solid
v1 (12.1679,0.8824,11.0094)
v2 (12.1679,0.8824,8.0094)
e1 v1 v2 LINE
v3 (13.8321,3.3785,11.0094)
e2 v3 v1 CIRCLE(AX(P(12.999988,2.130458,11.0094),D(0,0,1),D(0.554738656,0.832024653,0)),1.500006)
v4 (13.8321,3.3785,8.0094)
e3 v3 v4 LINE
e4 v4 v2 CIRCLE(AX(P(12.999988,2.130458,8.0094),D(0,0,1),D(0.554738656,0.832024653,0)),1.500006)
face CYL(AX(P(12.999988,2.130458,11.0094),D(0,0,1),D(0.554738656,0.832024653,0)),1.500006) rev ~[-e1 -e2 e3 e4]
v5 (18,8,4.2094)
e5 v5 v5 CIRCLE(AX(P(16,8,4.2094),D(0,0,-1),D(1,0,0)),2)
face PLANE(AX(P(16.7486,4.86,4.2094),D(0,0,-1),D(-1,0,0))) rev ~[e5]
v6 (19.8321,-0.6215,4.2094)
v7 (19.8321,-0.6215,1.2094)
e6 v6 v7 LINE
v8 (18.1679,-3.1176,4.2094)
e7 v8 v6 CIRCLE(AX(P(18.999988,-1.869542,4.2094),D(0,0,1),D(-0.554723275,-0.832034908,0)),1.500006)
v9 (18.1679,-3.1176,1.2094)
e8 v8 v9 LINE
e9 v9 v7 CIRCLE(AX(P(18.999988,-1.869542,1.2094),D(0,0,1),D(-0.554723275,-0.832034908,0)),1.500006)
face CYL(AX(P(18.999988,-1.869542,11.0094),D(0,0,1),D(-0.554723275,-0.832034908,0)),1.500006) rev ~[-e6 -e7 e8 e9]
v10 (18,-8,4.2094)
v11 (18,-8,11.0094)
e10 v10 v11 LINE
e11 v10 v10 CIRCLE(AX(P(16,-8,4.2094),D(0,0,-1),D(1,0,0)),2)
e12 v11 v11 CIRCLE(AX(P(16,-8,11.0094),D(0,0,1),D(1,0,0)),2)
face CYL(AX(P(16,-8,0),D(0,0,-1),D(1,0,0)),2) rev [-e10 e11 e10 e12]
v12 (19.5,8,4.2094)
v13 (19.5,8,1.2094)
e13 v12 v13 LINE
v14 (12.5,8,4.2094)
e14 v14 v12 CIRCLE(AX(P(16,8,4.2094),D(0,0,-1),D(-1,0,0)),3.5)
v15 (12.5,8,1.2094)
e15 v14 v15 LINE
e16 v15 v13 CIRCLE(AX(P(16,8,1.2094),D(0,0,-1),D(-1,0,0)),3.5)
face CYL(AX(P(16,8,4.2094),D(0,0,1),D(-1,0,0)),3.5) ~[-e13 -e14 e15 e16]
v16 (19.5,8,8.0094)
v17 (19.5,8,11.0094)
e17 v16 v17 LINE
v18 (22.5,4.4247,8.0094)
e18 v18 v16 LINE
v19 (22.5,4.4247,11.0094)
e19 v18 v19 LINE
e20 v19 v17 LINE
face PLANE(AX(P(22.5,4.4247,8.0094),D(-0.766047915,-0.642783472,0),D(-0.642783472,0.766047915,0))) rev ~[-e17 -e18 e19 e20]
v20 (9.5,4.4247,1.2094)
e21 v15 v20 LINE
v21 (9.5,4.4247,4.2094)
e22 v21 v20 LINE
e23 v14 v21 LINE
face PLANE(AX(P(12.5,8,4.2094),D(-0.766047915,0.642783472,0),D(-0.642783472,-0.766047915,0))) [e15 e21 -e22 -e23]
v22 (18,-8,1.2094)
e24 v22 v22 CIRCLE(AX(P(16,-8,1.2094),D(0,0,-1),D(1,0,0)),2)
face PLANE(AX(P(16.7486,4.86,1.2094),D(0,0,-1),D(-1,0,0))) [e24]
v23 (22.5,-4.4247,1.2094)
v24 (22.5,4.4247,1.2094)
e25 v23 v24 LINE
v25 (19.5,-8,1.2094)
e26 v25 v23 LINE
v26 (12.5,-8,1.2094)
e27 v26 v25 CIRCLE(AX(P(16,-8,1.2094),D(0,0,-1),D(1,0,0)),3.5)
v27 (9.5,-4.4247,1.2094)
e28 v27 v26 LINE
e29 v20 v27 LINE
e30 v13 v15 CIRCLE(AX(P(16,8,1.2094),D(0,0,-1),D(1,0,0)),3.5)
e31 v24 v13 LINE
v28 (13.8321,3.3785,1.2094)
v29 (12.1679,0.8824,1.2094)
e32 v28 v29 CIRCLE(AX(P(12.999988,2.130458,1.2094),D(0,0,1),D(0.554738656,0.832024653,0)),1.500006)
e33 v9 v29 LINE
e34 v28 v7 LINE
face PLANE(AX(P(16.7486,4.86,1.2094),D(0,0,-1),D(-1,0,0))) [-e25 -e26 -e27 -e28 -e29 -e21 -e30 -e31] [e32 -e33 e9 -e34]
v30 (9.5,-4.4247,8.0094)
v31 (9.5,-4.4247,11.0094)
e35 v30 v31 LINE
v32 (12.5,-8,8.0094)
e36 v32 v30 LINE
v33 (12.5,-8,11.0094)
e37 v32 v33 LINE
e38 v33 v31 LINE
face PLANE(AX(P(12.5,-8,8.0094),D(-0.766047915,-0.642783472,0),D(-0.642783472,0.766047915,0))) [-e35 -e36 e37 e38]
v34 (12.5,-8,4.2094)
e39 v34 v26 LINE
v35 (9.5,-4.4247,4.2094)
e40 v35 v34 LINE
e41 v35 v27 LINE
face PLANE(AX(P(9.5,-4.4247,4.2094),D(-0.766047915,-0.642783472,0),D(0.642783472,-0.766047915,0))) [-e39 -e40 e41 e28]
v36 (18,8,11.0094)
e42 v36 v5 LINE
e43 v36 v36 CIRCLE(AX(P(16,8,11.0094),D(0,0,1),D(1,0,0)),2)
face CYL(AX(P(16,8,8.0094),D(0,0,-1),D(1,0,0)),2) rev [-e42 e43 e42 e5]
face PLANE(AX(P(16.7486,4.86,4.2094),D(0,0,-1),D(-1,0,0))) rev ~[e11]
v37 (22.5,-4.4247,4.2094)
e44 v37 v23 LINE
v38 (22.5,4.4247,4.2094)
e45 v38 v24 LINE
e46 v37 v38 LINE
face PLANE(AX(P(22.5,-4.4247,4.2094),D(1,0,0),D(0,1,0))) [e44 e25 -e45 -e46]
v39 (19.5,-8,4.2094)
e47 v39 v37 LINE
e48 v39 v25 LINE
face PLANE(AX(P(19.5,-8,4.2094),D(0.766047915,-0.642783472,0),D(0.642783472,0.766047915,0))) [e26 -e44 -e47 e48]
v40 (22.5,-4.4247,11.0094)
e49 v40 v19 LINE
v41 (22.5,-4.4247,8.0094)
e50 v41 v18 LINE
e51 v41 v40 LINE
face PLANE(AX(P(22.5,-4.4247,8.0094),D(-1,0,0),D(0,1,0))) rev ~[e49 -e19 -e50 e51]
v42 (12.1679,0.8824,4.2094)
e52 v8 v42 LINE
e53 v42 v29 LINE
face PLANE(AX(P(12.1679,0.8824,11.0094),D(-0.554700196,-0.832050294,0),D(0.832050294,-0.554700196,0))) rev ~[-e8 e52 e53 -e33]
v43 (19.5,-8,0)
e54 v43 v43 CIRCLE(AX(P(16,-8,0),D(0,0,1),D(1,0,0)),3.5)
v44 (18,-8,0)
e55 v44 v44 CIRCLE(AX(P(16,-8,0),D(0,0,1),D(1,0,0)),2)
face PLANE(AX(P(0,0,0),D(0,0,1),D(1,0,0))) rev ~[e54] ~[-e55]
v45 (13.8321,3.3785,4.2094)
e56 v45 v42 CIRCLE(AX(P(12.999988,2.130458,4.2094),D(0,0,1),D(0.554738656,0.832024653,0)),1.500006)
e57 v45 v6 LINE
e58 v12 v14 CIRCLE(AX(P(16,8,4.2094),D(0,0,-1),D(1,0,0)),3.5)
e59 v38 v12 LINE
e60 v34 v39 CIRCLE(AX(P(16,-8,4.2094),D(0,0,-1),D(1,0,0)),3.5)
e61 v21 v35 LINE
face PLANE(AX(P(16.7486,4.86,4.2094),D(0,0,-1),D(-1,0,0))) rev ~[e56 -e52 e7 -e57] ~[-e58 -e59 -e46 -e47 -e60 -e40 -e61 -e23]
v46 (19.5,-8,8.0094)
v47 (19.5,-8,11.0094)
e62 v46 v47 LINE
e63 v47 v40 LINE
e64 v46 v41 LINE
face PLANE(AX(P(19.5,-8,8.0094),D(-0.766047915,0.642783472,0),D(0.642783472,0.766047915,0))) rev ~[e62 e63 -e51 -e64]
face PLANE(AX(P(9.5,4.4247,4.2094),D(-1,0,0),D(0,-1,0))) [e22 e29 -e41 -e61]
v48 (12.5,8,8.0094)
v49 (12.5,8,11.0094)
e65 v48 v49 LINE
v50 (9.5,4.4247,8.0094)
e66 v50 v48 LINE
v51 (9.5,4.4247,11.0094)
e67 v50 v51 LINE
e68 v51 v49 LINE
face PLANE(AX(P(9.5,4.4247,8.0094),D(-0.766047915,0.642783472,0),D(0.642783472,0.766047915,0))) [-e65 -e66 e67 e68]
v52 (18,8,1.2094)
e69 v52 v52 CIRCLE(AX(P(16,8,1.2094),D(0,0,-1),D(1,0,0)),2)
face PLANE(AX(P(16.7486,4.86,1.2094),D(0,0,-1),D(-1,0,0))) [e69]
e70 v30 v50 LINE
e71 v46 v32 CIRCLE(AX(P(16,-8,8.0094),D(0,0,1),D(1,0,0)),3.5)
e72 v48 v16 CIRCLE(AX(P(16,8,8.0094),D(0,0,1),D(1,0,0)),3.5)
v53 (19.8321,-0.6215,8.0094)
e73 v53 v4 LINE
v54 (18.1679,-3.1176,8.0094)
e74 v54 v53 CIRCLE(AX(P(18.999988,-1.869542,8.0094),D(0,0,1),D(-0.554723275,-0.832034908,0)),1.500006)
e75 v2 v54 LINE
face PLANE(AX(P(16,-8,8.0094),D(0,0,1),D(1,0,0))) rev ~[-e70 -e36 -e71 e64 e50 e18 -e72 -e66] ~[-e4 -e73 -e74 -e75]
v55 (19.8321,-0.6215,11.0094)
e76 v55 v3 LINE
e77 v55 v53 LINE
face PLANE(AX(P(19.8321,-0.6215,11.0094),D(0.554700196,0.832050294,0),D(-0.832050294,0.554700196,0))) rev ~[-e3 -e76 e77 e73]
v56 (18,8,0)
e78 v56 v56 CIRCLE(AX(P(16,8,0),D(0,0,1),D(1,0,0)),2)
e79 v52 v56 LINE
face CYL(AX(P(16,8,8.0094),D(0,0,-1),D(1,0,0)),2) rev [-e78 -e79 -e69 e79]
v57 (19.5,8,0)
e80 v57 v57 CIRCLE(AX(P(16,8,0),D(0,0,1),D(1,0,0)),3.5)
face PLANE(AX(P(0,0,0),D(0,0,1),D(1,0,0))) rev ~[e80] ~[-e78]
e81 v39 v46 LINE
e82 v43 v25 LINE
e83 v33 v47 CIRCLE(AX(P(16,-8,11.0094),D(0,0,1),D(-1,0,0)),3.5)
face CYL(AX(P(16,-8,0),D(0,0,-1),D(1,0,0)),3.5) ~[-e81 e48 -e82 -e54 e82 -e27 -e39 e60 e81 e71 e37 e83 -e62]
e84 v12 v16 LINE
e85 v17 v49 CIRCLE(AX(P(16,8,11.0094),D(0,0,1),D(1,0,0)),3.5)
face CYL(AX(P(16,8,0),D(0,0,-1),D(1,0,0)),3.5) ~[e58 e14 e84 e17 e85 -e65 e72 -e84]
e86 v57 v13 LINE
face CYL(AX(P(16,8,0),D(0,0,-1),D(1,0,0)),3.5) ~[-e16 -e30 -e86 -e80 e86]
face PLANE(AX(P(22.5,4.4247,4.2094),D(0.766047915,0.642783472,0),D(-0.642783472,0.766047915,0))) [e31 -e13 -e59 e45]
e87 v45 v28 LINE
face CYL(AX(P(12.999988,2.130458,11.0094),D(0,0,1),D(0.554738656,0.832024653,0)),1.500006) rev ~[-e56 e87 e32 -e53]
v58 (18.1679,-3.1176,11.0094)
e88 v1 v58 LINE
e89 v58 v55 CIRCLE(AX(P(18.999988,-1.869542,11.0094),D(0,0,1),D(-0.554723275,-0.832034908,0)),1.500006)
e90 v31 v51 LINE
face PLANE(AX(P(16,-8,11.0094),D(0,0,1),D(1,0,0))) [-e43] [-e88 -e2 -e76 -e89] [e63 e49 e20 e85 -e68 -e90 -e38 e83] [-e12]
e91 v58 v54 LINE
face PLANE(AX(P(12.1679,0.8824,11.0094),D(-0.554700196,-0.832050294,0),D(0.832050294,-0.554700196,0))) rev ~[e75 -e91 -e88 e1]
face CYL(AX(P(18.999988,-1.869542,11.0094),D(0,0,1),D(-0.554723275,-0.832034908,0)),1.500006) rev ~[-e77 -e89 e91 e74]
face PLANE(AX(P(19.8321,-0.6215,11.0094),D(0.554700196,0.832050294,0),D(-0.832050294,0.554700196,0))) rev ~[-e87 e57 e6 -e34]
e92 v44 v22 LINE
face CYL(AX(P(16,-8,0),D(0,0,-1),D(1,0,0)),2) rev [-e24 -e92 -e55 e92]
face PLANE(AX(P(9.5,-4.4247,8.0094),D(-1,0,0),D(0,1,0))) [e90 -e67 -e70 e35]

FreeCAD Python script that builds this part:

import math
import FreeCAD as App
import Part
import Sketcher

V = App.Vector
Q = App.Units.Quantity

doc = App.newDocument("Part")
body = doc.addObject("PartDesign::Body", "Body")
body.AllowCompound = True

sketch1 = body.newObject("Sketcher::SketchObject", "Sketch")
sketch1.AttachmentSupport = (doc.getObject("XY_Plane"), [""])
sketch1.MapMode = "FlatFace"
sketch1.addGeometry([
    Part.Circle(V(16, -8, 0), V(0, 0, 1), 3.5),
    Part.Circle(V(16, -8, 0), V(0, 0, 1), 2),
    Part.Circle(V(16, 8, 0), V(0, 0, 1), 3.5),
    Part.Circle(V(16, 8, 0), V(0, 0, 1), 2),
], False)
sketch1.addConstraint([
    Sketcher.Constraint("Coincident", 1, 3, 0, 3),
    Sketcher.Constraint("Coincident", 3, 3, 2, 3),
    Sketcher.Constraint("Equal", 0, 2),
    Sketcher.Constraint("Equal", 1, 3),
    Sketcher.Constraint("Symmetric", 0, 3, 2, 3, -1),
    Sketcher.Constraint("Diameter", 0, 7.0),
    Sketcher.Constraint("Diameter", 1, 4.0),
    Sketcher.Constraint("DistanceX", -1, 1, 0, 3, 16.0),
    Sketcher.Constraint("DistanceY", 0, 3, -1, 1, 8.0),
])
pad1 = body.newObject("PartDesign::Pad", "Pad")
pad1.Profile = sketch1
pad1.Length = 8.0094

sketch2 = body.newObject("Sketcher::SketchObject", "Sketch001")
sketch2.AttachmentSupport = (doc.getObject("XY_Plane"), [""])
sketch2.MapMode = "FlatFace"
sketch2.AttachmentOffset = App.Placement(V(0, 0, 8.0094), App.Rotation())
sketch2.addGeometry([
    Part.ArcOfCircle(Part.Circle(V(16, -8, 0), V(0, 0, 1), 3.5), math.radians(180), math.radians(360)),
    Part.LineSegment(V(19.5, -8, 0), V(22.5, -4.4, 0)),
    Part.LineSegment(V(22.5, -4.4, 0), V(22.5, 4.4, 0)),
    Part.LineSegment(V(22.5, 4.4, 0), V(19.5, 8, 0)),
    Part.ArcOfCircle(Part.Circle(V(16, 8, 0), V(0, 0, 1), 3.5), math.radians(0), math.radians(180)),
    Part.LineSegment(V(12.5, 8, 0), V(9.5, 4.4, 0)),
    Part.LineSegment(V(9.5, 4.4, 0), V(9.5, -4.4, 0)),
    Part.LineSegment(V(9.5, -4.4, 0), V(12.5, -8, 0)),
    Part.Circle(V(16, -8, 0), V(0, 0, 1), 2),
    Part.Circle(V(16, 8, 0), V(0, 0, 1), 2),
], False)
sketch2.addConstraint([
    Sketcher.Constraint("Coincident", 0, 2, 1, 1),
    Sketcher.Constraint("Coincident", 1, 2, 2, 1),
    Sketcher.Constraint("Coincident", 2, 2, 3, 1),
    Sketcher.Constraint("Coincident", 3, 2, 4, 1),
    Sketcher.Constraint("Coincident", 4, 2, 5, 1),
    Sketcher.Constraint("Coincident", 5, 2, 6, 1),
    Sketcher.Constraint("Coincident", 6, 2, 7, 1),
    Sketcher.Constraint("Coincident", 7, 2, 0, 1),
    Sketcher.Constraint("Vertical", 2),
    Sketcher.Constraint("Vertical", 6),
    Sketcher.Constraint("Coincident", 8, 3, 0, 3),
    Sketcher.Constraint("Coincident", 9, 3, 4, 3),
    Sketcher.Constraint("Equal", 0, 4),
    Sketcher.Constraint("Equal", 8, 9),
    Sketcher.Constraint("Symmetric", 0, 3, 4, 3, -1),
    Sketcher.Constraint("Parallel", 1, 5),
    Sketcher.Constraint("Parallel", 3, 7),
    Sketcher.Constraint("Horizontal", 8, 3, 0, 2),
    Sketcher.Constraint("Horizontal", 9, 3, 3, 2),
    Sketcher.Constraint("Horizontal", 3, 2, 4, 2),
    Sketcher.Constraint("Horizontal", 2, 2, 5, 2),
    Sketcher.Constraint("Horizontal", 1, 2, 6, 2),
    Sketcher.Constraint("Horizontal", 0, 2, 7, 2),
    Sketcher.Constraint("Diameter", 8, 4.0),
    Sketcher.Constraint("DistanceX", 4, 2, 2, 2, 10.0),
    Sketcher.Constraint("Radius", 0, 3.5),
    Sketcher.Constraint("Angle", 1, Q("50.0003 deg")),
    Sketcher.Constraint("DistanceX", -1, 1, 0, 3, 16.0),
    Sketcher.Constraint("DistanceY", 0, 3, -1, 1, 8.0),
])
pad2 = body.newObject("PartDesign::Pad", "Pad001")
pad2.Profile = sketch2
pad2.Length = 3

sketch3 = body.newObject("Sketcher::SketchObject", "Sketch002")
sketch3.AttachmentSupport = (doc.getObject("XY_Plane"), [""])
sketch3.MapMode = "FlatFace"
sketch3.AttachmentOffset = App.Placement(V(0, 0, 4.2094), App.Rotation())
sketch3.addGeometry([
    Part.LineSegment(V(9.5, 4.4, 0), V(12.5, 8, 0)),
    Part.ArcOfCircle(Part.Circle(V(16, 8, 0), V(0, 0, 1), 3.5), math.radians(0), math.radians(180)),
    Part.LineSegment(V(19.5, 8, 0), V(22.5, 4.4, 0)),
    Part.LineSegment(V(22.5, 4.4, 0), V(22.5, -4.4, 0)),
    Part.LineSegment(V(22.5, -4.4, 0), V(19.5, -8, 0)),
    Part.ArcOfCircle(Part.Circle(V(16, -8, 0), V(0, 0, 1), 3.5), math.radians(180), math.radians(360)),
    Part.LineSegment(V(12.5, -8, 0), V(9.5, -4.4, 0)),
    Part.LineSegment(V(9.5, -4.4, 0), V(9.5, 4.4, 0)),
], False)
sketch3.addConstraint([
    Sketcher.Constraint("Coincident", 0, 2, 1, 2),
    Sketcher.Constraint("Coincident", 1, 1, 2, 1),
    Sketcher.Constraint("Coincident", 2, 2, 3, 1),
    Sketcher.Constraint("Coincident", 3, 2, 4, 1),
    Sketcher.Constraint("Coincident", 4, 2, 5, 2),
    Sketcher.Constraint("Coincident", 5, 1, 6, 1),
    Sketcher.Constraint("Coincident", 6, 2, 7, 1),
    Sketcher.Constraint("Coincident", 7, 2, 0, 1),
    Sketcher.Constraint("Vertical", 3),
    Sketcher.Constraint("Vertical", 7),
    Sketcher.Constraint("Equal", 1, 5),
    Sketcher.Constraint("Symmetric", 1, 3, 5, 3, -1),
    Sketcher.Constraint("Parallel", 0, 4),
    Sketcher.Constraint("Parallel", 2, 6),
    Sketcher.Constraint("Horizontal", 1, 3, 0, 2),
    Sketcher.Constraint("Horizontal", 0, 2, 1, 1),
    Sketcher.Constraint("Horizontal", 5, 3, 4, 2),
    Sketcher.Constraint("Horizontal", 4, 2, 5, 1),
    Sketcher.Constraint("Horizontal", 3, 2, 6, 2),
    Sketcher.Constraint("Horizontal", 2, 2, 7, 2),
    Sketcher.Constraint("Radius", 1, 3.5),
    Sketcher.Constraint("Angle", 0, Q("50.0003 deg")),
    Sketcher.Constraint("DistanceX", -1, 1, 1, 3, 16.0),
    Sketcher.Constraint("DistanceY", -1, 1, 1, 3, 8.0),
    Sketcher.Constraint("DistanceX", 1, 1, 2, 2, 3.0),
])
pad3 = body.newObject("PartDesign::Pad", "Pad002")
pad3.Profile = sketch3
pad3.Length = 3
pad3.Reversed = True

sketch4 = body.newObject("Sketcher::SketchObject", "Sketch003")
sketch4.AttachmentSupport = (doc.getObject("XY_Plane"), [""])
sketch4.MapMode = "FlatFace"
sketch4.AttachmentOffset = App.Placement(V(0, 0, 11.0094), App.Rotation())
sketch4.addGeometry([
    Part.ArcOfCircle(Part.Circle(V(13, 2.1, 0), V(0, 0, 1), 1.5), math.radians(56), math.radians(236)),
    Part.LineSegment(V(12.2, 0.9, 0), V(18.2, -3.1, 0)),
    Part.ArcOfCircle(Part.Circle(V(19, -1.9, 0), V(0, 0, 1), 1.5), math.radians(-124), math.radians(56)),
    Part.LineSegment(V(19.8, -0.6, 0), V(13.8, 3.4, 0)),
], False)
sketch4.addConstraint([
    Sketcher.Constraint("Tangent", 0, 2, 1, 1),
    Sketcher.Constraint("Tangent", 1, 2, 2, 1),
    Sketcher.Constraint("Tangent", 2, 2, 3, 1),
    Sketcher.Constraint("Tangent", 3, 2, 0, 1),
    Sketcher.Constraint("Equal", 0, 2),
    Sketcher.Constraint("Radius", 0, 1.5),
    Sketcher.Constraint("DistanceX", -1, 1, 0, 3, 13.0),
    Sketcher.Constraint("DistanceX", -1, 1, 2, 3, 19.0),
    Sketcher.Constraint("DistanceY", 2, 3, 0, 3, 4.0),
    Sketcher.Constraint("DistanceY", -1, 1, 0, 3, 2.1304),
])
pocket1 = body.newObject("PartDesign::Pocket", "Pocket")
pocket1.Profile = sketch4
pocket1.Type = "ThroughAll"

doc.recompute()
